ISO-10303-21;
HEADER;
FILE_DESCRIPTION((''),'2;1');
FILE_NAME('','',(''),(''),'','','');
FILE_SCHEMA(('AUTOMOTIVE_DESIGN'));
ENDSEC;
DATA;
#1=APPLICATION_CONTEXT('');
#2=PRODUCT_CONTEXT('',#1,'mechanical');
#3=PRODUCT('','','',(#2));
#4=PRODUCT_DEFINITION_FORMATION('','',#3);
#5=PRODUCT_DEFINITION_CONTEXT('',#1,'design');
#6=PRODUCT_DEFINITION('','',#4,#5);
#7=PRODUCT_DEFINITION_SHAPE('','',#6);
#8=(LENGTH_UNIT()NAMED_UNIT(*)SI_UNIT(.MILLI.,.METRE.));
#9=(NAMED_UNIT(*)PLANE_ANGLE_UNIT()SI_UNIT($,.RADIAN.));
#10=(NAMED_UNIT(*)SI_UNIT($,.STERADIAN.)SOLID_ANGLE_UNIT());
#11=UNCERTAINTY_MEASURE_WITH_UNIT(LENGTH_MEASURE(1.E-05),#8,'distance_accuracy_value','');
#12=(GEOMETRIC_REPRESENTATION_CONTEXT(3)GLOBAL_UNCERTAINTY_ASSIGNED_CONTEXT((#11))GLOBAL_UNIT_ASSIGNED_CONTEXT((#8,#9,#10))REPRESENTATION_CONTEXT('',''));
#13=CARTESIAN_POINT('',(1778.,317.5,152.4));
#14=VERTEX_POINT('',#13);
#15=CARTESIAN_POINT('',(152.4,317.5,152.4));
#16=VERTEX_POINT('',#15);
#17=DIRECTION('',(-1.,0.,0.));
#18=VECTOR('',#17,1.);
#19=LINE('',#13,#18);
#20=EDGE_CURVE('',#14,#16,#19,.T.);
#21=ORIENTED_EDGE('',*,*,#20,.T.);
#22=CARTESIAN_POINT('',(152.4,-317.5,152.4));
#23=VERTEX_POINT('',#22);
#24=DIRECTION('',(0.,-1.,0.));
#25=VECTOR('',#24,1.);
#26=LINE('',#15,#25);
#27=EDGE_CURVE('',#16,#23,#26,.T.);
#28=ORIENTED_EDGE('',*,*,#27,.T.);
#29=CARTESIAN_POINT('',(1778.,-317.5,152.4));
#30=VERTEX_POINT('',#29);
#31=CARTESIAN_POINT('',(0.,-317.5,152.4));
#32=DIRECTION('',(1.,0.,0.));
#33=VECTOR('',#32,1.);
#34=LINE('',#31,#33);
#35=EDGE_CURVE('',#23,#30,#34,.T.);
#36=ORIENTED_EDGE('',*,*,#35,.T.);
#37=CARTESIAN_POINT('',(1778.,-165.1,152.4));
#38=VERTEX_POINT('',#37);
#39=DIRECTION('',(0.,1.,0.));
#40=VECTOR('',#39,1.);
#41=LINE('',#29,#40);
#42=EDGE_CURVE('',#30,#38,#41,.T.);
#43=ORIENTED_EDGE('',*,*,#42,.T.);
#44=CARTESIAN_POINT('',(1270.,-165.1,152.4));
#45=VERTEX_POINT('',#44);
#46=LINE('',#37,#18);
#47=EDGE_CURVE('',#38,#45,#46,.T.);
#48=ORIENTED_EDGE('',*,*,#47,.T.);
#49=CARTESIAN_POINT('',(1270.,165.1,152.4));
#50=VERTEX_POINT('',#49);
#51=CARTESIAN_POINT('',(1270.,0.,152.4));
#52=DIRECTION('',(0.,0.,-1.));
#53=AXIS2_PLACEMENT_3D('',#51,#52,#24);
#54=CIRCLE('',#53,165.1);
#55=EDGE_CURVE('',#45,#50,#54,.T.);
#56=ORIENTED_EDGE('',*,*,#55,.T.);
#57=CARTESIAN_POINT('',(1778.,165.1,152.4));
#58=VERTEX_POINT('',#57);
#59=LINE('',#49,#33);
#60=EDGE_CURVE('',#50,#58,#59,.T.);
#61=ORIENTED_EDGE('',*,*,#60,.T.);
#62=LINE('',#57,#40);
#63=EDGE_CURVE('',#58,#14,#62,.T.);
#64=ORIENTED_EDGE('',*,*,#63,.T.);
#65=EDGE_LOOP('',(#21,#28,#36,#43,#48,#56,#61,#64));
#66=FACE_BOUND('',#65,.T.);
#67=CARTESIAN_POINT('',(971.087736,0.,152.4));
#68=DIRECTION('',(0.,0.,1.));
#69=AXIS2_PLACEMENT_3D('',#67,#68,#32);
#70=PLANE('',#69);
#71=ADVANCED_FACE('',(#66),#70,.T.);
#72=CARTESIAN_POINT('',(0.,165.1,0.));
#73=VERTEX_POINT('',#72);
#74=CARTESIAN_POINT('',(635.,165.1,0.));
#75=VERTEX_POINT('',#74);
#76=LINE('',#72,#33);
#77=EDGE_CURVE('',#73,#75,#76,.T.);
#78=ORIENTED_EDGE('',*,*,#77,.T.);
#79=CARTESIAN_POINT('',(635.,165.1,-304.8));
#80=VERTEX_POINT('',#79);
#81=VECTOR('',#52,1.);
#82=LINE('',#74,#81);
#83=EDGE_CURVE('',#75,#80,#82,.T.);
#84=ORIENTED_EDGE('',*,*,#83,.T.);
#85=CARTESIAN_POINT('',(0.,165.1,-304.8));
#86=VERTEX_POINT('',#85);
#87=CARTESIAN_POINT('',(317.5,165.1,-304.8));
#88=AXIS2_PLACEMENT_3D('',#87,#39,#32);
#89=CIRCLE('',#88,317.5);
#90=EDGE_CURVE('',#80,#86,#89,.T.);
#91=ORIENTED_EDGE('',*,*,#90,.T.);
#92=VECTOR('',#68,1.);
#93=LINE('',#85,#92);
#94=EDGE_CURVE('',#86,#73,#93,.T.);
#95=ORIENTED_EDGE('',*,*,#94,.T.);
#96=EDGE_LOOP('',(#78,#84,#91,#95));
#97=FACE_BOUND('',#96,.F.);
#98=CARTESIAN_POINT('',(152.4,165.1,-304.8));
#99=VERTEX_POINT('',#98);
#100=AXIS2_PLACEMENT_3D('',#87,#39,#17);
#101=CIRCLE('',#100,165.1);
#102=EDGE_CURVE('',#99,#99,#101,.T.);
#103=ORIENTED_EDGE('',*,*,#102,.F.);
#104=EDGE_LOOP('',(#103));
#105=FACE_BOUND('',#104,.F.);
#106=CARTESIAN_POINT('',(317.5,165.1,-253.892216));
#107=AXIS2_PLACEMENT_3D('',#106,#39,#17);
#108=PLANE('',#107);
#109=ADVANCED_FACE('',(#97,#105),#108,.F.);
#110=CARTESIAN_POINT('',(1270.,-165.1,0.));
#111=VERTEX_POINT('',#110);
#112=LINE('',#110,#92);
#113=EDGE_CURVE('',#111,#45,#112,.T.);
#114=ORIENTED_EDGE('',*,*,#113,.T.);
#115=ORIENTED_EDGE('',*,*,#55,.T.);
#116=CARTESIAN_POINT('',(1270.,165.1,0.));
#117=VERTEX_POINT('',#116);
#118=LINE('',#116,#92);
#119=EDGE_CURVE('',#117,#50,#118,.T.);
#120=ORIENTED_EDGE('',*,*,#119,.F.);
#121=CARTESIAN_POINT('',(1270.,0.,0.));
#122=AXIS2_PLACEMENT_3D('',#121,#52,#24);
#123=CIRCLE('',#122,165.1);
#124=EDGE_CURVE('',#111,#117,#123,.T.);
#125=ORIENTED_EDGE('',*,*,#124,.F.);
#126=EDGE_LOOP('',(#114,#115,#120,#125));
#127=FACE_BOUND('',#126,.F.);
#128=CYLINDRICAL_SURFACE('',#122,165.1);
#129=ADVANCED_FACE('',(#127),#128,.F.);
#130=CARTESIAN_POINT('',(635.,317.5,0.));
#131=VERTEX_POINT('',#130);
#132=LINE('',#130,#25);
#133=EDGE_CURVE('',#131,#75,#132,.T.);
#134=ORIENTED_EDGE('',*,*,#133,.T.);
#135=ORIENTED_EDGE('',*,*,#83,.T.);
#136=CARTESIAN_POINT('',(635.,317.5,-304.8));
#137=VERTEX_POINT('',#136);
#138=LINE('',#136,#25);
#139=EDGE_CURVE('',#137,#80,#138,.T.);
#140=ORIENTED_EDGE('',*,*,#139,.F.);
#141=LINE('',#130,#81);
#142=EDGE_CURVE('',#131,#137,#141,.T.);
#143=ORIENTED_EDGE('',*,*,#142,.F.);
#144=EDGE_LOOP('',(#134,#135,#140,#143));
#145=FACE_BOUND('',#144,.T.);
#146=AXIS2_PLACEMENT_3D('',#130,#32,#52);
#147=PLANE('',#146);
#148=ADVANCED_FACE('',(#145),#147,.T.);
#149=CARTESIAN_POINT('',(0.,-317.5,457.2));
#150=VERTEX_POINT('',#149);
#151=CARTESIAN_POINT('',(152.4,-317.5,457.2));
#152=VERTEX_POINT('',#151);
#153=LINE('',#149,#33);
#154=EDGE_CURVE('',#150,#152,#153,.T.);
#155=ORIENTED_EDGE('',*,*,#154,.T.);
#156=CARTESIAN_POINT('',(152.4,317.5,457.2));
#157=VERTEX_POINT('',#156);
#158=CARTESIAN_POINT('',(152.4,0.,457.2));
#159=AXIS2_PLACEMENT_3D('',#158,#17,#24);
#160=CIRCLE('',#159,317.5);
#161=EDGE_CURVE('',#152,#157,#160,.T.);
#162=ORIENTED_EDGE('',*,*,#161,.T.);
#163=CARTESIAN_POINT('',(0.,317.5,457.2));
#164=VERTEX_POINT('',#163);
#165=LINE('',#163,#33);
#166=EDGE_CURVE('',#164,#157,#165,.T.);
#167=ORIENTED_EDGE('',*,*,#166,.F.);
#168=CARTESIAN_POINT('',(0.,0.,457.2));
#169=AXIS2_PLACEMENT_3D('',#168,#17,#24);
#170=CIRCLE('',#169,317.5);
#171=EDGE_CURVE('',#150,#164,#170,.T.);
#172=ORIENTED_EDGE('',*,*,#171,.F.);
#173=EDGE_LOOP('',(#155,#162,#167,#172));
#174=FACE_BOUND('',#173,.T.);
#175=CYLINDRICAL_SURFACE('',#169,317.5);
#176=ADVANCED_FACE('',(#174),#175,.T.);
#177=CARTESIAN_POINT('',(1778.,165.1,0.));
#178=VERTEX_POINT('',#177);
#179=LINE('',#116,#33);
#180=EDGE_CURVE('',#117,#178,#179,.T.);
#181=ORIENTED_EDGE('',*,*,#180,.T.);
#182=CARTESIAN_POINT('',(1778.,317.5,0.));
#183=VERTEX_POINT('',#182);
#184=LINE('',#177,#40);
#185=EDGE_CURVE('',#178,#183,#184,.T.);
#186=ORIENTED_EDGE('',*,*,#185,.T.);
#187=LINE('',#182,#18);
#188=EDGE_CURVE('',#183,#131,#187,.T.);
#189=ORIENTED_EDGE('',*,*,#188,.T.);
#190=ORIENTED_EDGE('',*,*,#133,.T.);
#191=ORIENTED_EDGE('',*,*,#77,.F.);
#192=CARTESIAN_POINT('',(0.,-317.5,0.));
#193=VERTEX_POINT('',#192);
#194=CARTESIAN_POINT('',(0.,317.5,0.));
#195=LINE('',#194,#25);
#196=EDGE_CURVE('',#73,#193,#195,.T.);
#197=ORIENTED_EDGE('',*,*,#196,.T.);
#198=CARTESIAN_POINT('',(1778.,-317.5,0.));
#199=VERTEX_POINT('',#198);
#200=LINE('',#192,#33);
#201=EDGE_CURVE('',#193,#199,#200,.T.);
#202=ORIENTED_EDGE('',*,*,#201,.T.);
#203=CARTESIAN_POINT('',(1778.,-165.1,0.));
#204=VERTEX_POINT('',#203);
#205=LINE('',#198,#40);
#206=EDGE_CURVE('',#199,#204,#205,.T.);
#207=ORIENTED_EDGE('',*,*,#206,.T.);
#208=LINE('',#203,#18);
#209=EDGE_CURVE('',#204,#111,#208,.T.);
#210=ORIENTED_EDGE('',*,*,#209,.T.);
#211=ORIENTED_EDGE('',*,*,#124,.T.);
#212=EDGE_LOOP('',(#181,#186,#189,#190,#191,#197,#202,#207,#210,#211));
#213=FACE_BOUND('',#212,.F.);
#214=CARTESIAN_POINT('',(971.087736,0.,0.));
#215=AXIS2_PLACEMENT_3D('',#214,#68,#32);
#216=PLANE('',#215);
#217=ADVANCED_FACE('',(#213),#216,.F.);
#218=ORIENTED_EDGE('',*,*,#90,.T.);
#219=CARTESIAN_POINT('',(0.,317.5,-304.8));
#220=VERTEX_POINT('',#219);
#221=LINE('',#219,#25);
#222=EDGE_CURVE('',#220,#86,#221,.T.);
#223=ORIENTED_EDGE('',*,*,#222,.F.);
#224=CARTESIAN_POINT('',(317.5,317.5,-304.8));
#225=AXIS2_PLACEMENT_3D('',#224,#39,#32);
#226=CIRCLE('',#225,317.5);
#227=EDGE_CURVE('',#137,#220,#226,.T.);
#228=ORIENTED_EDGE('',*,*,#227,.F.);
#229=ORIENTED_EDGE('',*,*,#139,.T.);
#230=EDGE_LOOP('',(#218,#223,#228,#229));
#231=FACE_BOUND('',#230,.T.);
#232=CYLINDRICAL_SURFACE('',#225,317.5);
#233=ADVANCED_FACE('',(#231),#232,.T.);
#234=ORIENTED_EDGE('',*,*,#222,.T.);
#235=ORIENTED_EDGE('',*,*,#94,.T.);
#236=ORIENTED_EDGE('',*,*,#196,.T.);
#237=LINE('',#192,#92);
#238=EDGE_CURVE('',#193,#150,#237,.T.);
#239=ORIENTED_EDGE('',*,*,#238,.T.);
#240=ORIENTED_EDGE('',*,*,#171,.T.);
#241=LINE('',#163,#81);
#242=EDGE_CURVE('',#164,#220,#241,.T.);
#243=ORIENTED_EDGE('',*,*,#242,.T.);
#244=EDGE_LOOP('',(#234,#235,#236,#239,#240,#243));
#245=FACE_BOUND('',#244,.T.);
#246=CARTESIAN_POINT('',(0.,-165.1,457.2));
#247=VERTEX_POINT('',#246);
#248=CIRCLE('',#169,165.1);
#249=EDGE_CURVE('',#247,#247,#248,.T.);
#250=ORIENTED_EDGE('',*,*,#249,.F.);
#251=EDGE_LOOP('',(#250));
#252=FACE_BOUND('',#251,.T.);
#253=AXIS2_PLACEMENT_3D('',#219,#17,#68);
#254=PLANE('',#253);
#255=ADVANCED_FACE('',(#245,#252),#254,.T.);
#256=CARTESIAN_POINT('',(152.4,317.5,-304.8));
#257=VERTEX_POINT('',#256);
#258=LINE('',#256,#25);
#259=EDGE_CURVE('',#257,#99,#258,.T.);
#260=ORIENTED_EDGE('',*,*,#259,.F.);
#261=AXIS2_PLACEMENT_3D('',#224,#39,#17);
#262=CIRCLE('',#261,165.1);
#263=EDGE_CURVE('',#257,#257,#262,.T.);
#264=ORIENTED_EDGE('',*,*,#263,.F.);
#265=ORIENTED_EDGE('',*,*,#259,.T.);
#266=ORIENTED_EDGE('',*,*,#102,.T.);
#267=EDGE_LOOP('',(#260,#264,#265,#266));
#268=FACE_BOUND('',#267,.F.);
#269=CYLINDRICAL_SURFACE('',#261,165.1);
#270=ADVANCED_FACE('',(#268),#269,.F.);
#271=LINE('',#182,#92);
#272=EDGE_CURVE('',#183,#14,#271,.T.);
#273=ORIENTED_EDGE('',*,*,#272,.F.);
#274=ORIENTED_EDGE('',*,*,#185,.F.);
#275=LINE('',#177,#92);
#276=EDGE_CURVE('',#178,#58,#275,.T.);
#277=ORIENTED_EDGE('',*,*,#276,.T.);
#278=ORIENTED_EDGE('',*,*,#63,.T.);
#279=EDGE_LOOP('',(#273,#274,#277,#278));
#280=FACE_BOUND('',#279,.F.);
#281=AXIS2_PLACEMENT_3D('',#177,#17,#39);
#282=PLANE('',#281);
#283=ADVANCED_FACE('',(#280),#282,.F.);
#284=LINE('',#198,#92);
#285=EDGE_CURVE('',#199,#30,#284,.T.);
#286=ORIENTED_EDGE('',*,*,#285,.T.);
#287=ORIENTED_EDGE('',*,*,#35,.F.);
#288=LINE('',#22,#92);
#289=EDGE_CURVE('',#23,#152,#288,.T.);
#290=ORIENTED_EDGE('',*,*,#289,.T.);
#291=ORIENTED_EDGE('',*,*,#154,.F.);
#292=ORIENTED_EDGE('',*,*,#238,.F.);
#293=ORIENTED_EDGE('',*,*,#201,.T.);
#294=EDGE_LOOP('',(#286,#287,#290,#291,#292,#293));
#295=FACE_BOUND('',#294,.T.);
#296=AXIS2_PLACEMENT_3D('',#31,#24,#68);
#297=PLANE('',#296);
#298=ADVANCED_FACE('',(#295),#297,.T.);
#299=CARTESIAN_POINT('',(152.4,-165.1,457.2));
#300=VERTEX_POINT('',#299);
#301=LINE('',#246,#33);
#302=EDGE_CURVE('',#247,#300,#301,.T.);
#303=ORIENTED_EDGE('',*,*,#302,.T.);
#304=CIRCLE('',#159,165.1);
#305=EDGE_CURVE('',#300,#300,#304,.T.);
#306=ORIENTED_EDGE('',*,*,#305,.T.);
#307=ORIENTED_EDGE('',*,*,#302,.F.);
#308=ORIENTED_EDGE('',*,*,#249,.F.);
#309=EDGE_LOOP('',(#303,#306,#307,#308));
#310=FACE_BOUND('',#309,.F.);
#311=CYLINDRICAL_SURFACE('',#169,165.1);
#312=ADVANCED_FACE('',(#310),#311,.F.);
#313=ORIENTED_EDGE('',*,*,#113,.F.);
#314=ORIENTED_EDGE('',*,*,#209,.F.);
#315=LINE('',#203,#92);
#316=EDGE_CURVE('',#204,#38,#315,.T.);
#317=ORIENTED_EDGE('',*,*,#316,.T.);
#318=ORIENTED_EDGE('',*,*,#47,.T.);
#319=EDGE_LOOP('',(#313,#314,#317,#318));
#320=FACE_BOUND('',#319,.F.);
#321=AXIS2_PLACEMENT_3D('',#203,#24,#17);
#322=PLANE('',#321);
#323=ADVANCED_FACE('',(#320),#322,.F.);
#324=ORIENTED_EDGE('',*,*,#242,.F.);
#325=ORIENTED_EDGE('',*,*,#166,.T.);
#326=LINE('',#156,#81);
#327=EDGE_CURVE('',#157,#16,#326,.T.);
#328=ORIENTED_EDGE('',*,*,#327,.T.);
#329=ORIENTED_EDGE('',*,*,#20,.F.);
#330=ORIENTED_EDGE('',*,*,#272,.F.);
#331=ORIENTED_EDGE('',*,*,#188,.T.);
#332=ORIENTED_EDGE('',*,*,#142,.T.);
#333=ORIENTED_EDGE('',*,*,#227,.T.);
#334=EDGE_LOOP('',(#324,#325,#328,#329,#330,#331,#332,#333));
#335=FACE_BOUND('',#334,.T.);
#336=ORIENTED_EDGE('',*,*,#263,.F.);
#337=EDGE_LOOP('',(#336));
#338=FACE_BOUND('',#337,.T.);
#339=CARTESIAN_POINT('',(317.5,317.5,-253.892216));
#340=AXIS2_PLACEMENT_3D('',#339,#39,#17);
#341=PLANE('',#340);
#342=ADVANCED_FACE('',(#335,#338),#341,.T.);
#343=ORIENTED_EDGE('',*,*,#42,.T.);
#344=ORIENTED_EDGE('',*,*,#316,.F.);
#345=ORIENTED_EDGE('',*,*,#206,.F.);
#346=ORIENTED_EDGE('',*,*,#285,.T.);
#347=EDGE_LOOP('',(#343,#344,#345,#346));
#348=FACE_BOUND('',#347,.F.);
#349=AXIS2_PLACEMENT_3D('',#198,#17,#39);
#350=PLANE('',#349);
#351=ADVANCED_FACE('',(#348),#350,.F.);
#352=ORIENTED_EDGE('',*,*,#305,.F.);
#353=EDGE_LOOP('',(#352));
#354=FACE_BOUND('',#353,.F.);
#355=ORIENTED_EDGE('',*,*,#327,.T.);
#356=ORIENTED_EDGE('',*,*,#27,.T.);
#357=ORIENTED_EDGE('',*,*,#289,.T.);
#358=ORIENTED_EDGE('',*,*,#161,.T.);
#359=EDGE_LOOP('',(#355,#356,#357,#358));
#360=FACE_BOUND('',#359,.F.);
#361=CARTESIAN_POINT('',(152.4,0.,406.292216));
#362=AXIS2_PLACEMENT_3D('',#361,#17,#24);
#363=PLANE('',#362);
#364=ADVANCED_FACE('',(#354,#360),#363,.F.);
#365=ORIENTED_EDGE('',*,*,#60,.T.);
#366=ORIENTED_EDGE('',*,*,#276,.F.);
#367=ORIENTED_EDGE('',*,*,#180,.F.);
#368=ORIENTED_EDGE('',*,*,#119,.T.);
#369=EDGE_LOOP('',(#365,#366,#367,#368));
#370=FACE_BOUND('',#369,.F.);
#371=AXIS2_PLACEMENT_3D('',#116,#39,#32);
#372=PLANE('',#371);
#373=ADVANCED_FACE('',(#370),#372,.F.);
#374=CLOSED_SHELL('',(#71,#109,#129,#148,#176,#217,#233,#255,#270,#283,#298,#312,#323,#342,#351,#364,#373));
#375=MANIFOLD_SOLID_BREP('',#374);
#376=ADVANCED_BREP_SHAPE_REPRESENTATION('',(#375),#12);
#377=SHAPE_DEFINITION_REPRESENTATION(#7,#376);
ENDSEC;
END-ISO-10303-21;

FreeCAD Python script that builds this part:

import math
import FreeCAD as App
import Part
import Sketcher

V = App.Vector
Q = App.Units.Quantity

doc = App.newDocument("Part")
params = doc.addObject("Spreadsheet::Sheet", "Params")
for row, (alias, value) in enumerate([
    ("sketch1_radius", "6.5 in"),
    ("sketch1_width", "70 in"),
    ("sketch1_width2", "20 in"),
    ("sketch1_height", "25 in"),
    ("pad1_length", "6 in"),
    ("sketch2_diameter", "13 in"),
    ("sketch2_radius", "12.5 in"),
    ("sketch2_height", "12 in"),
    ("pad2_length", "6 in"),
    ("sketch3_diameter", "13 in"),
    ("sketch3_radius", "12.5 in"),
    ("sketch3_height", "12 in"),
    ("pad3_length", "6 in"),
], start=1):
    params.set(f"A{row}", alias)
    params.set(f"B{row}", "=" + value)
    params.setAlias(f"B{row}", alias)

body = doc.addObject("PartDesign::Body", "Body")

# Sketch on XY plane
sketch1 = body.newObject("Sketcher::SketchObject", "Sketch")
sketch1.AttachmentSupport = (doc.getObject("XY_Plane"), [""])
sketch1.MapMode = "FlatFace"
sketch1.addGeometry(Part.LineSegment(V(0, 317.5, 0), V(0, -317.5, 0)), False)
sketch1.addGeometry(Part.LineSegment(V(0, -317.5, 0), V(1778, -317.5, 0)), False)
sketch1.addGeometry(Part.LineSegment(V(1778, -317.5, 0), V(1778, -165.1, 0)), False)
sketch1.addGeometry(Part.LineSegment(V(1778, -165.1, 0), V(1270, -165.1, 0)), False)
sketch1.addGeometry(Part.ArcOfCircle(Part.Circle(V(1270, 0, 0), V(0, 0, 1), 165.1), math.radians(90), math.radians(270)), False)
sketch1.addGeometry(Part.LineSegment(V(1270, 165.1, 0), V(1778, 165.1, 0)), False)
sketch1.addGeometry(Part.LineSegment(V(1778, 165.1, 0), V(1778, 317.5, 0)), False)
sketch1.addGeometry(Part.LineSegment(V(1778, 317.5, 0), V(0, 317.5, 0)), False)
sketch1.addConstraint(Sketcher.Constraint("Coincident", 0, 2, 1, 1))
sketch1.addConstraint(Sketcher.Constraint("Coincident", 1, 2, 2, 1))
sketch1.addConstraint(Sketcher.Constraint("Coincident", 2, 2, 3, 1))
sketch1.addConstraint(Sketcher.Constraint("Tangent", 3, 2, 4, 2))
sketch1.addConstraint(Sketcher.Constraint("Tangent", 4, 1, 5, 1))
sketch1.addConstraint(Sketcher.Constraint("Coincident", 5, 2, 6, 1))
sketch1.addConstraint(Sketcher.Constraint("Coincident", 6, 2, 7, 1))
sketch1.addConstraint(Sketcher.Constraint("Coincident", 7, 2, 0, 1))
sketch1.addConstraint(Sketcher.Constraint("Vertical", 0))
sketch1.addConstraint(Sketcher.Constraint("Horizontal", 1))
sketch1.addConstraint(Sketcher.Constraint("Vertical", 2))
sketch1.addConstraint(Sketcher.Constraint("Horizontal", 3))
sketch1.addConstraint(Sketcher.Constraint("Horizontal", 5))
sketch1.addConstraint(Sketcher.Constraint("Vertical", 6))
sketch1.addConstraint(Sketcher.Constraint("Horizontal", 7))
sketch1.addConstraint(Sketcher.Constraint("Symmetric", 0, 2, 7, 2, -1, 1))
sketch1.addConstraint(Sketcher.Constraint("Symmetric", 2, 2, 5, 2, -1))
sketch1.addConstraint(Sketcher.Constraint("Radius", 4, Q("6.5 in")))
sketch1.addConstraint(Sketcher.Constraint("DistanceX", 1, 1, 1, 2, Q("70 in")))
sketch1.addConstraint(Sketcher.Constraint("DistanceX", 3, 2, 3, 1, Q("20 in")))
sketch1.addConstraint(Sketcher.Constraint("DistanceY", 0, 2, 0, 1, Q("25 in")))
sketch1.setExpression("Constraints[17]", "Params.sketch1_radius")
sketch1.setExpression("Constraints[18]", "Params.sketch1_width")
sketch1.setExpression("Constraints[19]", "Params.sketch1_width2")
sketch1.setExpression("Constraints[20]", "Params.sketch1_height")
pad1 = body.newObject("PartDesign::Pad", "Pad")
pad1.Profile = sketch1
pad1.setExpression("Length", "Params.pad1_length")

# Sketch on YZ plane
sketch2 = body.newObject("Sketcher::SketchObject", "Sketch001")
sketch2.AttachmentSupport = (doc.getObject("YZ_Plane"), [""])
sketch2.MapMode = "FlatFace"
sketch2.addGeometry(Part.LineSegment(V(317.5, 457.2, 0), V(317.5, 152.4, 0)), False)
sketch2.addGeometry(Part.LineSegment(V(317.5, 152.4, 0), V(-317.5, 152.4, 0)), False)
sketch2.addGeometry(Part.LineSegment(V(-317.5, 152.4, 0), V(-317.5, 457.2, 0)), False)
sketch2.addGeometry(Part.ArcOfCircle(Part.Circle(V(0, 457.2, 0), V(0, 0, 1), 317.5), math.radians(0), math.radians(180)), False)
sketch2.addGeometry(Part.Circle(V(0, 457.2, 0), V(0, 0, 1), 165.1), False)
sketch2.addConstraint(Sketcher.Constraint("Coincident", 0, 2, 1, 1))
sketch2.addConstraint(Sketcher.Constraint("Coincident", 1, 2, 2, 1))
sketch2.addConstraint(Sketcher.Constraint("Tangent", 2, 2, 3, 2))
sketch2.addConstraint(Sketcher.Constraint("Tangent", 3, 1, 0, 1))
sketch2.addConstraint(Sketcher.Constraint("Vertical", 0))
sketch2.addConstraint(Sketcher.Constraint("Horizontal", 1))
sketch2.addConstraint(Sketcher.Constraint("Vertical", 2))
sketch2.addConstraint(Sketcher.Constraint("Coincident", 4, 3, 3, 3))
sketch2.addConstraint(Sketcher.Constraint("PointOnObject", 3, 3, -2))
sketch2.addConstraint(Sketcher.Constraint("Diameter", 4, Q("13 in")))
sketch2.addConstraint(Sketcher.Constraint("Radius", 3, Q("12.5 in")))
sketch2.addConstraint(Sketcher.Constraint("DistanceY", 0, 2, 0, 1, Q("12 in")))
sketch2.addConstraint(Sketcher.Constraint("DistanceY", -1, 1, 3, 3, Q("18 in")))
sketch2.setExpression("Constraints[9]", "Params.sketch2_diameter")
sketch2.setExpression("Constraints[10]", "Params.sketch2_radius")
sketch2.setExpression("Constraints[11]", "Params.sketch2_height")
pad2 = body.newObject("PartDesign::Pad", "Pad001")
pad2.Profile = sketch2
pad2.setExpression("Length", "Params.pad2_length")

# Sketch on XZ plane
sketch3 = body.newObject("Sketcher::SketchObject", "Sketch002")
sketch3.AttachmentSupport = (doc.getObject("XZ_Plane"), [""])
sketch3.MapMode = "FlatFace"
sketch3.AttachmentOffset = App.Placement(V(0, 0, -12.5 * 25.4), App.Rotation())
sketch3.addGeometry(Part.LineSegment(V(0, -304.8, 0), V(0, 0, 0)), False)
sketch3.addGeometry(Part.LineSegment(V(0, 0, 0), V(635, 0, 0)), False)
sketch3.addGeometry(Part.LineSegment(V(635, 0, 0), V(635, -304.8, 0)), False)
sketch3.addGeometry(Part.ArcOfCircle(Part.Circle(V(317.5, -304.8, 0), V(0, 0, 1), 317.5), math.radians(180), math.radians(360)), False)
sketch3.addGeometry(Part.Circle(V(317.5, -304.8, 0), V(0, 0, 1), 165.1), False)
sketch3.addConstraint(Sketcher.Constraint("Coincident", 0, 2, 1, 1))
sketch3.addConstraint(Sketcher.Constraint("Coincident", 1, 2, 2, 1))
sketch3.addConstraint(Sketcher.Constraint("Tangent", 2, 2, 3, 2))
sketch3.addConstraint(Sketcher.Constraint("Tangent", 3, 1, 0, 1))
sketch3.addConstraint(Sketcher.Constraint("Vertical", 0))
sketch3.addConstraint(Sketcher.Constraint("Horizontal", 1))
sketch3.addConstraint(Sketcher.Constraint("Vertical", 2))
sketch3.addConstraint(Sketcher.Constraint("Coincident", 0, 2, -1, 1))
sketch3.addConstraint(Sketcher.Constraint("Coincident", 4, 3, 3, 3))
sketch3.addConstraint(Sketcher.Constraint("Diameter", 4, Q("13 in")))
sketch3.addConstraint(Sketcher.Constraint("Radius", 3, Q("12.5 in")))
sketch3.addConstraint(Sketcher.Constraint("DistanceY", 0, 1, 0, 2, Q("12 in")))
sketch3.setExpression("Constraints[9]", "Params.sketch3_diameter")
sketch3.setExpression("Constraints[10]", "Params.sketch3_radius")
sketch3.setExpression("Constraints[11]", "Params.sketch3_height")
pad3 = body.newObject("PartDesign::Pad", "Pad002")
pad3.Profile = sketch3
pad3.setExpression("Length", "Params.pad3_length")

doc.recompute()
